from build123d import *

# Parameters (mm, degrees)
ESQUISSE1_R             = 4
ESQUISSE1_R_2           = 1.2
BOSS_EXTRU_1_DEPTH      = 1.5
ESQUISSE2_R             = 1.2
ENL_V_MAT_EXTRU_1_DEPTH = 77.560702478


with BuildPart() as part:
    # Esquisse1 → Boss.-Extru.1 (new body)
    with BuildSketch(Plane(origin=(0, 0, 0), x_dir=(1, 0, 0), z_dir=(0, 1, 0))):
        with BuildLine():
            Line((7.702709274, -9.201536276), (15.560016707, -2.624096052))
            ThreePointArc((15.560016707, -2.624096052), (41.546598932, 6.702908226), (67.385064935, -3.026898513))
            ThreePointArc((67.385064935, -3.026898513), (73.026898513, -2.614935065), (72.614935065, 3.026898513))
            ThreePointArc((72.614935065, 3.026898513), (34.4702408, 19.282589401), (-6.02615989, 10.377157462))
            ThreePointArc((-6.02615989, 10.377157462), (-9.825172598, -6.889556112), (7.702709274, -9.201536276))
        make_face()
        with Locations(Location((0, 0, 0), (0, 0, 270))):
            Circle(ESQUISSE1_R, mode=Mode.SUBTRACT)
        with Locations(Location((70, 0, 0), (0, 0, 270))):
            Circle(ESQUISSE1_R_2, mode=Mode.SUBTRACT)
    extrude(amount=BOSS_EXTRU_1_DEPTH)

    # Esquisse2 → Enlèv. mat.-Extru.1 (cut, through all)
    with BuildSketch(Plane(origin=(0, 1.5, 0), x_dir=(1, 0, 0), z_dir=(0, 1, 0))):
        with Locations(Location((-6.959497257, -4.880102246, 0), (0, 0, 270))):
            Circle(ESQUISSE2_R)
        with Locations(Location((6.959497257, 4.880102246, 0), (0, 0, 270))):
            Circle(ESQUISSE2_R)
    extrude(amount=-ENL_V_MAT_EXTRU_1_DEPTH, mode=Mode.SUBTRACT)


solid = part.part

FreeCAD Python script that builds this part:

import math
import FreeCAD as App
import Part
import Sketcher

doc = App.newDocument("Part")
params = doc.addObject("Spreadsheet::Sheet", "Params")
for row, (alias, value) in enumerate([
    ("sketch1_diameter", "8 mm"),
    ("sketch1_radius", "40 mm"),
    ("sketch1_radius2", "12 mm"),
    ("sketch1_diameter2", "2.4 mm"),
    ("pad1_length", "1.5 mm"),
    ("sketch2_diameter", "2.4 mm"),
], start=1):
    params.set(f"A{row}", alias)
    params.set(f"B{row}", "=" + value)
    params.setAlias(f"B{row}", alias)

body = doc.addObject("PartDesign::Body", "Body")

# Sketch on XZ plane
sketch1 = body.newObject("Sketcher::SketchObject", "Sketch")
sketch1.AttachmentSupport = (doc.getObject("XZ_Plane"), [""])
sketch1.MapMode = "FlatFace"
sketch1.addGeometry([
    Part.LineSegment(App.Vector(7.7, 9.2, 0), App.Vector(15.6, 2.6, 0)),  # 0
    Part.ArcOfCircle(Part.Circle(App.Vector(41.2, 33.3, 0), App.Vector(0, 0, 1), 40), math.radians(-130), math.radians(-49)),  # 1
    Part.ArcOfCircle(Part.Circle(App.Vector(70, 0, 0), App.Vector(0, 0, 1), 4), math.radians(-49), math.radians(131)),  # 2
    Part.ArcOfCircle(Part.Circle(App.Vector(28.1, 48.5, 0), App.Vector(0, 0, 1), 68), math.radians(-120), math.radians(-49)),  # 3
    Part.ArcOfCircle(Part.Circle(App.Vector(0, 0, 0), App.Vector(0, 0, 1), 12), math.radians(50), math.radians(240)),  # 4
    Part.Circle(App.Vector(0, 0, 0), App.Vector(0, 0, 1), 4),  # 5
    Part.Circle(App.Vector(70, 0, 0), App.Vector(0, 0, 1), 1.2),  # 6
], False)
sketch1.addConstraint([
    Sketcher.Constraint("Tangent", 0, 2, 1, 1),
    Sketcher.Constraint("Tangent", 1, 2, 2, 2),
    Sketcher.Constraint("Tangent", 2, 1, 3, 2),
    Sketcher.Constraint("Tangent", 3, 1, 4, 2),
    Sketcher.Constraint("Tangent", 4, 1, 0, 1),
    Sketcher.Constraint("Coincident", 4, 3, -1, 1),
    Sketcher.Constraint("Coincident", 5, 3, -1, 1),
    Sketcher.Constraint("Coincident", 6, 3, 2, 3),
    Sketcher.Constraint("Equal", 2, 5),
    Sketcher.Constraint("PointOnObject", 2, 3, -1),
    Sketcher.Constraint("Diameter", 5, 8.0),
    Sketcher.Constraint("Radius", 1, 40.0),
    Sketcher.Constraint("Radius", 4, 12.0),
    Sketcher.Constraint("Diameter", 6, 2.4),
    Sketcher.Constraint("DistanceX", -1, 1, 2, 3, 70.0),
    Sketcher.Constraint("Radius", 3, 68.033704),
    Sketcher.Constraint("Distance", 0, 10.246951),
])
sketch1.setExpression("Constraints[10]", "Params.sketch1_diameter")
sketch1.setExpression("Constraints[11]", "Params.sketch1_radius")
sketch1.setExpression("Constraints[12]", "Params.sketch1_radius2")
sketch1.setExpression("Constraints[13]", "Params.sketch1_diameter2")
pad1 = body.newObject("PartDesign::Pad", "Pad")
pad1.Profile = sketch1
pad1.setExpression("Length", "Params.pad1_length")
pad1.Reversed = True

# Sketch on XZ plane
sketch2 = body.newObject("Sketcher::SketchObject", "Sketch001")
sketch2.AttachmentSupport = (doc.getObject("XZ_Plane"), [""])
sketch2.MapMode = "FlatFace"
sketch2.AttachmentOffset = App.Placement(App.Vector(0, 0, -1.5), App.Rotation())
sketch2.addGeometry([
    Part.Circle(App.Vector(-7, 4.9, 0), App.Vector(0, 0, 1), 1.2),
    Part.Circle(App.Vector(7, -4.9, 0), App.Vector(0, 0, 1), 1.2),
], False)
sketch2.addConstraint([
    Sketcher.Constraint("Equal", 0, 1),
    Sketcher.Constraint("Symmetric", 0, 3, 1, 3, -1, 1),
    Sketcher.Constraint("Diameter", 0, 2.4),
    Sketcher.Constraint("DistanceX", 0, 3, -1, 1, 6.959497),
    Sketcher.Constraint("DistanceY", -1, 1, 0, 3, 4.880102),
])
sketch2.setExpression("Constraints[2]", "Params.sketch2_diameter")
pocket1 = body.newObject("PartDesign::Pocket", "Pocket")
pocket1.Profile = sketch2
pocket1.Type = "ThroughAll"
pocket1.Reversed = True

doc.recompute()
